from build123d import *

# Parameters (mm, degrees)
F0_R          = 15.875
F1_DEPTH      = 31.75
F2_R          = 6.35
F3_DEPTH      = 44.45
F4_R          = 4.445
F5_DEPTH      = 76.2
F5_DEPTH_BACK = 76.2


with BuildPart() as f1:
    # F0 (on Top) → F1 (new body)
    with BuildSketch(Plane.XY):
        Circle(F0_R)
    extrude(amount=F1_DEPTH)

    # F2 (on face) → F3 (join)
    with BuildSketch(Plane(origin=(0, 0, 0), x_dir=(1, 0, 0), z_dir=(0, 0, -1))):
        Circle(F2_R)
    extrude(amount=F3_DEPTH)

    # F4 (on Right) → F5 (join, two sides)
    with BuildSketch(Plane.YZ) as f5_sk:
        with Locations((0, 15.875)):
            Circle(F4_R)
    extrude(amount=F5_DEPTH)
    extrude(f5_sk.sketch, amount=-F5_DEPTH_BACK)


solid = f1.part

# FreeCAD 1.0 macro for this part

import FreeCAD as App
import Part
import Sketcher

V = App.Vector
Q = App.Units.Quantity

doc = App.newDocument("Part")
body = doc.addObject("PartDesign::Body", "Body")

sketch1 = doc.addObject("Sketcher::SketchObject", "Sketch")
body.addObject(sketch1)
sketch1.AttachmentSupport = (doc.XY_Plane, [""])
sketch1.MapMode = "FlatFace"
sketch1.addGeometry(Part.Circle(V(0, 0, 0), V(0, 0, 1), 15.875), False)
sketch1.addConstraint(Sketcher.Constraint("Coincident", 0, 3, -1, 1))
sketch1.addConstraint(Sketcher.Constraint("Diameter", 0, Q("1.25 in")))
pad1 = doc.addObject("PartDesign::Pad", "Pad")
body.addObject(pad1)
pad1.Profile = sketch1
pad1.Length = Q("1.25 in")

sketch2 = doc.addObject("Sketcher::SketchObject", "Sketch001")
body.addObject(sketch2)
sketch2.AttachmentSupport = (doc.XY_Plane, [""])
sketch2.MapMode = "FlatFace"
sketch2.addGeometry(Part.Circle(V(0, 0, 0), V(0, 0, 1), 6.35), False)
sketch2.addConstraint(Sketcher.Constraint("Coincident", 0, 3, -1, 1))
sketch2.addConstraint(Sketcher.Constraint("Diameter", 0, Q("0.5 in")))
pad2 = doc.addObject("PartDesign::Pad", "Pad001")
body.addObject(pad2)
pad2.Profile = sketch2
pad2.Length = Q("1.75 in")
pad2.Reversed = True

sketch3 = doc.addObject("Sketcher::SketchObject", "Sketch002")
body.addObject(sketch3)
sketch3.AttachmentSupport = (doc.YZ_Plane, [""])
sketch3.MapMode = "FlatFace"
sketch3.addGeometry(Part.Circle(V(0, 15.875, 0), V(0, 0, 1), 4.445), False)
sketch3.addConstraint(Sketcher.Constraint("PointOnObject", 0, 3, -2))
sketch3.addConstraint(Sketcher.Constraint("Diameter", 0, Q("0.35 in")))
sketch3.addConstraint(Sketcher.Constraint("DistanceY", -1, 1, 0, 3, Q("0.625 in")))
pad3 = doc.addObject("PartDesign::Pad", "Pad002")
body.addObject(pad3)
pad3.Profile = sketch3
pad3.Type = "TwoLengths"
pad3.Length = Q("3 in")
pad3.Length2 = Q("3 in")

doc.recompute()
